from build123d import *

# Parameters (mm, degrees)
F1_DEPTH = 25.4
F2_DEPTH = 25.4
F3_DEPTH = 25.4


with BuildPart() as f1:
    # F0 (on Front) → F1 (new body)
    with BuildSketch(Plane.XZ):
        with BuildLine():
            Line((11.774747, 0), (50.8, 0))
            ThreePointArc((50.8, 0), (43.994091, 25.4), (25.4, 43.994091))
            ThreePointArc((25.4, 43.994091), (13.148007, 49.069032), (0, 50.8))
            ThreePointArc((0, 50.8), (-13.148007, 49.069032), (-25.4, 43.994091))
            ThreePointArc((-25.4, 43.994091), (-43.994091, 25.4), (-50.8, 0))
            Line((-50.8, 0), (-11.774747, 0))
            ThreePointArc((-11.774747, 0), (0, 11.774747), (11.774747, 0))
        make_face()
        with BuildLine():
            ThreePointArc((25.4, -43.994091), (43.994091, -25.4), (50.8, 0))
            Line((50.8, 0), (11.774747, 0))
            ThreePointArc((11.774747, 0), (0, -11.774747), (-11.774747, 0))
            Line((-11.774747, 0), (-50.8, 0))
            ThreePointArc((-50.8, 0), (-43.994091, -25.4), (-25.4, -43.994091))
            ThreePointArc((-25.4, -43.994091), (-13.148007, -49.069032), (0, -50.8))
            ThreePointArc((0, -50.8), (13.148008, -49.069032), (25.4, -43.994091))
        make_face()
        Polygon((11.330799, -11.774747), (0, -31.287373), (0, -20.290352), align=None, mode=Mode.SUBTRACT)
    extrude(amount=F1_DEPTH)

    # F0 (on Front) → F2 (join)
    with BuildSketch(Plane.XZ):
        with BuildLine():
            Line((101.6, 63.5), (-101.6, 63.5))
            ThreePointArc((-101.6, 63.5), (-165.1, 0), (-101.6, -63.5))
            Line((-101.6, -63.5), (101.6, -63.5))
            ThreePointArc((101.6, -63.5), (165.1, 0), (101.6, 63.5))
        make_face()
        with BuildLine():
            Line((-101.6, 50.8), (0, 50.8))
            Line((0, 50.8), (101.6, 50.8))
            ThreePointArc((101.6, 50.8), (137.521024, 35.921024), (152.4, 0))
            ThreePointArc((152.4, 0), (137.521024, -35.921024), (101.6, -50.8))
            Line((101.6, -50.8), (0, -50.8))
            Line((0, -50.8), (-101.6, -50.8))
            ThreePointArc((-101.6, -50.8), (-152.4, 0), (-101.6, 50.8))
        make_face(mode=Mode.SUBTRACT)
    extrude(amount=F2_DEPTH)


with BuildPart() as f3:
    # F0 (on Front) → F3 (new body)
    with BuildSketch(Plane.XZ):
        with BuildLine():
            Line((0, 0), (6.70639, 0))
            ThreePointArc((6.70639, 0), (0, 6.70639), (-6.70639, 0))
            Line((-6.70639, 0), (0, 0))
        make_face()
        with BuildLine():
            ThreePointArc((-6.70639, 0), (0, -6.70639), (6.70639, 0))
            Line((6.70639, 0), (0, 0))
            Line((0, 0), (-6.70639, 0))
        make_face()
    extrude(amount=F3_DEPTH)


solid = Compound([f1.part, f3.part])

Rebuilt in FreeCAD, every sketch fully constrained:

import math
import FreeCAD as App
import Part
import Sketcher
Q = App.Units.Quantity

doc = App.newDocument("Part")
body = doc.addObject("PartDesign::Body", "Body")
body.AllowCompound = True

# Sketch on XZ plane
sketch1 = body.newObject("Sketcher::SketchObject", "Sketch")
sketch1.AttachmentSupport = (doc.getObject("XZ_Plane"), [""])
sketch1.MapMode = "FlatFace"
sketch1.addGeometry(Part.ArcOfCircle(Part.Circle(App.Vector(0.000001, 0.000001, 0), App.Vector(0, 0, 1), 50.799999), math.radians(-0.000001), math.radians(60.000001)), False)
sketch1.addGeometry(Part.ArcOfCircle(Part.Circle(App.Vector(-0.000002, -0.000009, 0), App.Vector(0, 0, 1), 50.800009), math.radians(60.000004), math.radians(89.999998)), False)
sketch1.addGeometry(Part.ArcOfCircle(Part.Circle(App.Vector(0.000002, -0.000009, 0), App.Vector(0, 0, 1), 50.800009), math.radians(90.000002), math.radians(119.999996)), False)
sketch1.addGeometry(Part.ArcOfCircle(Part.Circle(App.Vector(-0.000001, 0.000001, 0), App.Vector(0, 0, 1), 50.799999), math.radians(119.999999), math.radians(180.000001)), False)
sketch1.addGeometry(Part.ArcOfCircle(Part.Circle(App.Vector(-0.000001, -0.000001, 0), App.Vector(0, 0, 1), 50.799999), math.radians(179.999999), math.radians(240.000001)), False)
sketch1.addGeometry(Part.ArcOfCircle(Part.Circle(App.Vector(0.000002, 0.000009, 0), App.Vector(0, 0, 1), 50.800009), math.radians(-119.999996), math.radians(-90.000002)), False)
sketch1.addGeometry(Part.ArcOfCircle(Part.Circle(App.Vector(0, 0.000002, 0), App.Vector(0, 0, 1), 50.800002), math.radians(-90), math.radians(-60.000002)), False)
sketch1.addGeometry(Part.ArcOfCircle(Part.Circle(App.Vector(0.000001, -0.000001, 0), App.Vector(0, 0, 1), 50.799999), math.radians(-60.000001), math.radians(0.000001)), False)
sketch1.addGeometry(Part.LineSegment(App.Vector(0, -20.290352, 0), App.Vector(11.330799, -11.774747, 0)), False)
sketch1.addGeometry(Part.LineSegment(App.Vector(11.330799, -11.774747, 0), App.Vector(0, -31.287373, 0)), False)
sketch1.addGeometry(Part.LineSegment(App.Vector(0, -31.287373, 0), App.Vector(0, -20.290352, 0)), False)
sketch1.addGeometry(Part.Circle(App.Vector(0, 0, 0), App.Vector(0, 0, 1), 11.774747), False)
sketch1.addConstraint(Sketcher.Constraint("Tangent", 0, 2, 1, 1))
sketch1.addConstraint(Sketcher.Constraint("Tangent", 1, 2, 2, 1))
sketch1.addConstraint(Sketcher.Constraint("Tangent", 2, 2, 3, 1))
sketch1.addConstraint(Sketcher.Constraint("Tangent", 3, 2, 4, 1))
sketch1.addConstraint(Sketcher.Constraint("Tangent", 4, 2, 5, 1))
sketch1.addConstraint(Sketcher.Constraint("Tangent", 5, 2, 6, 1))
sketch1.addConstraint(Sketcher.Constraint("Tangent", 6, 2, 7, 1))
sketch1.addConstraint(Sketcher.Constraint("Tangent", 7, 2, 0, 1))
sketch1.addConstraint(Sketcher.Constraint("Coincident", 8, 2, 9, 1))
sketch1.addConstraint(Sketcher.Constraint("Coincident", 9, 2, 10, 1))
sketch1.addConstraint(Sketcher.Constraint("Coincident", 10, 2, 8, 1))
sketch1.addConstraint(Sketcher.Constraint("Vertical", 10))
sketch1.addConstraint(Sketcher.Constraint("Coincident", 0, 3, -1, 1))
sketch1.addConstraint(Sketcher.Constraint("Coincident", 2, 3, -1, 1))
sketch1.addConstraint(Sketcher.Constraint("Coincident", 4, 3, -1, 1))
sketch1.addConstraint(Sketcher.Constraint("Coincident", 11, 3, -1, 1))
sketch1.addConstraint(Sketcher.Constraint("Equal", 2, 5))
sketch1.addConstraint(Sketcher.Constraint("PointOnObject", 1, 2, -2))
sketch1.addConstraint(Sketcher.Constraint("PointOnObject", 3, 2, -1))
sketch1.addConstraint(Sketcher.Constraint("PointOnObject", 5, 2, -2))
sketch1.addConstraint(Sketcher.Constraint("PointOnObject", 7, 2, -1))
sketch1.addConstraint(Sketcher.Constraint("PointOnObject", 9, 2, -2))
sketch1.addConstraint(Sketcher.Constraint("Horizontal", 0, 2, 2, 2))
sketch1.addConstraint(Sketcher.Constraint("Horizontal", 4, 2, 6, 2))
sketch1.addConstraint(Sketcher.Constraint("Vertical", 2, 2, 4, 2))
sketch1.addConstraint(Sketcher.Constraint("Radius", 0, Q("2 in")))
sketch1.addConstraint(Sketcher.Constraint("DistanceX", -1, 1, 0, 2, Q("1 in")))
sketch1.addConstraint(Sketcher.Constraint("Diameter", 11, Q("23.549494 mm")))
sketch1.addConstraint(Sketcher.Constraint("Distance", 9, Q("22.5639 mm")))
sketch1.addConstraint(Sketcher.Constraint("DistanceY", 10, 1, 10, 2, Q("10.997021 mm")))
sketch1.addConstraint(Sketcher.Constraint("DistanceX", -1, 1, 8, 2, Q("11.330799 mm")))
sketch1.addConstraint(Sketcher.Constraint("DistanceY", 10, 2, -1, 1, Q("20.290352 mm")))
pad1 = body.newObject("PartDesign::Pad", "Pad")
pad1.Profile = sketch1
pad1.Length = Q("1 in")

# Sketch on XZ plane
sketch2 = body.newObject("Sketcher::SketchObject", "Sketch001")
sketch2.AttachmentSupport = (doc.getObject("XZ_Plane"), [""])
sketch2.MapMode = "FlatFace"
sketch2.addGeometry(Part.LineSegment(App.Vector(101.6, 63.5, 0), App.Vector(-101.6, 63.5, 0)), False)
sketch2.addGeometry(Part.ArcOfCircle(Part.Circle(App.Vector(-101.6, 0, 0), App.Vector(0, 0, 1), 63.5), math.radians(90), math.radians(270)), False)
sketch2.addGeometry(Part.LineSegment(App.Vector(-101.6, -63.5, 0), App.Vector(101.6, -63.5, 0)), False)
sketch2.addGeometry(Part.ArcOfCircle(Part.Circle(App.Vector(101.6, 0, 0), App.Vector(0, 0, 1), 63.5), math.radians(-90), math.radians(90)), False)
sketch2.addGeometry(Part.ArcOfCircle(Part.Circle(App.Vector(-101.6, 0, 0), App.Vector(0, 0, 1), 50.8), math.radians(90), math.radians(270)), False)
sketch2.addGeometry(Part.LineSegment(App.Vector(-101.6, 50.8, 0), App.Vector(101.6, 50.8, 0)), False)
sketch2.addGeometry(Part.ArcOfCircle(Part.Circle(App.Vector(101.599998, -0.000002, 0), App.Vector(0, 0, 1), 50.800002), math.radians(0.000002), math.radians(89.999998)), False)
sketch2.addGeometry(Part.ArcOfCircle(Part.Circle(App.Vector(101.599998, 0.000002, 0), App.Vector(0, 0, 1), 50.800002), math.radians(-89.999998), math.radians(-0.000002)), False)
sketch2.addGeometry(Part.LineSegment(App.Vector(101.6, -50.8, 0), App.Vector(-101.6, -50.8, 0)), False)
sketch2.addConstraint(Sketcher.Constraint("Tangent", 0, 2, 1, 1))
sketch2.addConstraint(Sketcher.Constraint("Tangent", 1, 2, 2, 1))
sketch2.addConstraint(Sketcher.Constraint("Tangent", 2, 2, 3, 1))
sketch2.addConstraint(Sketcher.Constraint("Tangent", 3, 2, 0, 1))
sketch2.addConstraint(Sketcher.Constraint("Tangent", 4, 1, 5, 1))
sketch2.addConstraint(Sketcher.Constraint("Tangent", 5, 2, 6, 2))
sketch2.addConstraint(Sketcher.Constraint("Tangent", 6, 1, 7, 2))
sketch2.addConstraint(Sketcher.Constraint("Tangent", 7, 1, 8, 1))
sketch2.addConstraint(Sketcher.Constraint("Tangent", 8, 2, 4, 2))
sketch2.addConstraint(Sketcher.Constraint("Horizontal", 0))
sketch2.addConstraint(Sketcher.Constraint("Horizontal", 2))
sketch2.addConstraint(Sketcher.Constraint("Horizontal", 5))
sketch2.addConstraint(Sketcher.Constraint("Horizontal", 8))
sketch2.addConstraint(Sketcher.Constraint("Coincident", 4, 3, 1, 3))
sketch2.addConstraint(Sketcher.Constraint("Coincident", 6, 3, 3, 3))
sketch2.addConstraint(Sketcher.Constraint("Symmetric", 1, 3, 3, 3, -1, 1))
sketch2.addConstraint(Sketcher.Constraint("PointOnObject", 6, 1, -1))
sketch2.addConstraint(Sketcher.Constraint("Radius", 4, Q("2 in")))
sketch2.addConstraint(Sketcher.Constraint("Radius", 1, Q("2.5 in")))
sketch2.addConstraint(Sketcher.Constraint("DistanceX", 0, 2, 0, 1, Q("8 in")))
pad2 = body.newObject("PartDesign::Pad", "Pad001")
pad2.Profile = sketch2
pad2.Length = Q("1 in")
body2 = doc.addObject("PartDesign::Body", "Body001")

# Sketch on XZ plane
sketch3 = body2.newObject("Sketcher::SketchObject", "Sketch002")
sketch3.AttachmentSupport = (doc.getObject("XZ_Plane001"), [""])
sketch3.MapMode = "FlatFace"
sketch3.addGeometry(Part.Circle(App.Vector(0, 0, 0), App.Vector(0, 0, 1), 6.70639), False)
sketch3.addConstraint(Sketcher.Constraint("Coincident", 0, 3, -1, 1))
sketch3.addConstraint(Sketcher.Constraint("Diameter", 0, Q("13.41278 mm")))
pad3 = body2.newObject("PartDesign::Pad", "Pad002")
pad3.Profile = sketch3
pad3.Length = Q("1 in")

doc.recompute()
